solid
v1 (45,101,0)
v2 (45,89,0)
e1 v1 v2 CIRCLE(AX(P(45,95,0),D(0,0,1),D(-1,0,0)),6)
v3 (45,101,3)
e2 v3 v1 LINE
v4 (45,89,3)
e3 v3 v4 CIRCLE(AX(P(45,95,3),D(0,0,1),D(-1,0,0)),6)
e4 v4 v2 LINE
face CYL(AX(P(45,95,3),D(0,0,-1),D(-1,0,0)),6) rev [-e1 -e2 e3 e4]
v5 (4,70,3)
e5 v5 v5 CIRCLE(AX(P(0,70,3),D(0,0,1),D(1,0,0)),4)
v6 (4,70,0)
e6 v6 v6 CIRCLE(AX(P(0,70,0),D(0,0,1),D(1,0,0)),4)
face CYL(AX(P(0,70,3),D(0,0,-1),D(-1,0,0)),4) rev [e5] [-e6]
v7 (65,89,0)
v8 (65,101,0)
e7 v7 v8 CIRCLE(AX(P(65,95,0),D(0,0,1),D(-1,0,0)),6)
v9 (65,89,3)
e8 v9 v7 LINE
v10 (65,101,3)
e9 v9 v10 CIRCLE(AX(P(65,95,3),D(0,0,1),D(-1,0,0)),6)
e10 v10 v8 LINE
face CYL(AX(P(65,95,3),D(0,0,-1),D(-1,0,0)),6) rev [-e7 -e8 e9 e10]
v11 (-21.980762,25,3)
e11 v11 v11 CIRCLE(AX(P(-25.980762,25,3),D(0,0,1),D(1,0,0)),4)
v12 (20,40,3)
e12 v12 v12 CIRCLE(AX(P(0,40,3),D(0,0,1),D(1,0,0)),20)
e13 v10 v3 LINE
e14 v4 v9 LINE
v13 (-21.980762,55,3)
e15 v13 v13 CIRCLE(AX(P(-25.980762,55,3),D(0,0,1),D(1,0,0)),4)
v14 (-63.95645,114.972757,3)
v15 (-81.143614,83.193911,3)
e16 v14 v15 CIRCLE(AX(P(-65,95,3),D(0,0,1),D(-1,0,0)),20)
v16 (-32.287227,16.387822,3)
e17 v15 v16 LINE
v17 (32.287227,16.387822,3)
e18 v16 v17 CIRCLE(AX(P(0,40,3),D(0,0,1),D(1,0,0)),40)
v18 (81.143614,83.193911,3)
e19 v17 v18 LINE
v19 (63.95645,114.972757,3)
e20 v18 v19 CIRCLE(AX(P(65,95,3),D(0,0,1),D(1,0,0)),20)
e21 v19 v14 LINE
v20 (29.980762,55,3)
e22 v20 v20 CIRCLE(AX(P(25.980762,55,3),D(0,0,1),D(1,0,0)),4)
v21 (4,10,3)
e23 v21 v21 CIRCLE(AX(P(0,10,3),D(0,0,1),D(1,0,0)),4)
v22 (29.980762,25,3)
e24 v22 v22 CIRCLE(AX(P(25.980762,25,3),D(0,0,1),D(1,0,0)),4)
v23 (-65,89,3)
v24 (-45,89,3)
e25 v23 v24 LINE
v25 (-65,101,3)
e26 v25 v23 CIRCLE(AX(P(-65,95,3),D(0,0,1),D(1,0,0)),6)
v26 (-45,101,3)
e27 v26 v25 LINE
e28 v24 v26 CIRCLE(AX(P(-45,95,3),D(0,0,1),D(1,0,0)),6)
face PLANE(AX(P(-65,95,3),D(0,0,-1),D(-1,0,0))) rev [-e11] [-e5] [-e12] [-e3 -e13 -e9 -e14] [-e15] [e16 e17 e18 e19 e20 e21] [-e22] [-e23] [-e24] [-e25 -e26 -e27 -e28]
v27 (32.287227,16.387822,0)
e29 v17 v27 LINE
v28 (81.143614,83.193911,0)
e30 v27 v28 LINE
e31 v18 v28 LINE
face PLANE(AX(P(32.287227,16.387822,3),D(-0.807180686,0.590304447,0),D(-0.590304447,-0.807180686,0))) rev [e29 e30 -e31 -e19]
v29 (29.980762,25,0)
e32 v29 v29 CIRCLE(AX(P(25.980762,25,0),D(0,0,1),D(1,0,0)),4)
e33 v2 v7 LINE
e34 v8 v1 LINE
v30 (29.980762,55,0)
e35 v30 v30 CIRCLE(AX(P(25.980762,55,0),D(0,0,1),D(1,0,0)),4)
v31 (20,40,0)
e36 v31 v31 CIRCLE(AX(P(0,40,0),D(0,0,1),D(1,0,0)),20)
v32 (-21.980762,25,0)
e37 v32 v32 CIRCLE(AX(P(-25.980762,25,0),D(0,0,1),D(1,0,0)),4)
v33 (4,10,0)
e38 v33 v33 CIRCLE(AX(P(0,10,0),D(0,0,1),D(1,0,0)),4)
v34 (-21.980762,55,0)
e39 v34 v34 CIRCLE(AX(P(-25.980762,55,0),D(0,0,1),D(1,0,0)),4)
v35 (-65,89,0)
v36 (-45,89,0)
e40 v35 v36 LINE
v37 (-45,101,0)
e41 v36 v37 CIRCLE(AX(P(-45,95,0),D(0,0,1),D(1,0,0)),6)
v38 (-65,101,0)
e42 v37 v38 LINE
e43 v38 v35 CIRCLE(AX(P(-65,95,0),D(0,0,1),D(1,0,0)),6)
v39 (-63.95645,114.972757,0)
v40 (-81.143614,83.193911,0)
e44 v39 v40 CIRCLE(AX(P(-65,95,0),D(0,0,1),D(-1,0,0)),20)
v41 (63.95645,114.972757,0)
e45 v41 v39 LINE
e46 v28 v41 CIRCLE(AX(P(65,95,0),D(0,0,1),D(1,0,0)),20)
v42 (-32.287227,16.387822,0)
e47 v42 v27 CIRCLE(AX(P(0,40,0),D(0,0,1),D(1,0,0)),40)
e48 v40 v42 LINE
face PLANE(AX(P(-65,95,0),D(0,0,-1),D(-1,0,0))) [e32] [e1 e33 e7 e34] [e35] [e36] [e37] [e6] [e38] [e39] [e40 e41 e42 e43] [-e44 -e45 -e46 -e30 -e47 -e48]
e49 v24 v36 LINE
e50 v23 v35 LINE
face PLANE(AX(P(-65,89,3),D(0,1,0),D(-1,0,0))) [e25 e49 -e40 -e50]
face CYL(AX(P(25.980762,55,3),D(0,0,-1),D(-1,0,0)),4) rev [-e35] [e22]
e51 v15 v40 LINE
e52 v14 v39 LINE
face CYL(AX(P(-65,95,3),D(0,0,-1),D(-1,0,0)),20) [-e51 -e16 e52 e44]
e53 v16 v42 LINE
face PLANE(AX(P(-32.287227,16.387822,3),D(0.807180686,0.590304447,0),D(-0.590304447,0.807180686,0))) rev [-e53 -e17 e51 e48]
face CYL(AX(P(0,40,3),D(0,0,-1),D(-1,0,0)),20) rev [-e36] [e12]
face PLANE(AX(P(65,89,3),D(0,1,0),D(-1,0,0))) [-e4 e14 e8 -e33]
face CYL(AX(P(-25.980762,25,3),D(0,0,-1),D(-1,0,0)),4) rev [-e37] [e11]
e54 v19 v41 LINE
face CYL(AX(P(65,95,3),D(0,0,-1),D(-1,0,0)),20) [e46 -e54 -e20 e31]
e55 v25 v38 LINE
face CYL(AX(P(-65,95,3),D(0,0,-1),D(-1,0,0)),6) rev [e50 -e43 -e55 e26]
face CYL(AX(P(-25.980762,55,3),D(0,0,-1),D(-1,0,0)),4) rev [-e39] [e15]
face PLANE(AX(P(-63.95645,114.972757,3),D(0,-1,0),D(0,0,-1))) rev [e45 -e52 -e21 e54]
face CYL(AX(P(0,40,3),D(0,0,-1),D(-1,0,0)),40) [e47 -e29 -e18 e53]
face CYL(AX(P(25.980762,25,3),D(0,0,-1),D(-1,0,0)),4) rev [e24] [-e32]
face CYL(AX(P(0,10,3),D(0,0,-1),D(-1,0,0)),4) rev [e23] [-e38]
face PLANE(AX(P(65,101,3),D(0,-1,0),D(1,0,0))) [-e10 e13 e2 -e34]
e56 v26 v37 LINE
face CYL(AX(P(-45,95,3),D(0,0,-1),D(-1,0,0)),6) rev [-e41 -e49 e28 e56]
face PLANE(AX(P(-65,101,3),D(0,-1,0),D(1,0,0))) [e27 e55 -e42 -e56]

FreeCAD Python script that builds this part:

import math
import FreeCAD as App
import Part
import Sketcher
from FreeCAD import Vector

doc = App.newDocument("Part")
body = doc.addObject("PartDesign::Body", "Body")

sketch1 = body.newObject("Sketcher::SketchObject", "Sketch")
sketch1.AttachmentSupport = (doc.getObject("XY_Plane"), [""])
sketch1.MapMode = "FlatFace"
sketch1.addGeometry([
    Part.LineSegment(Vector(-81.143614, 83.193911, 0), Vector(-32.287227, 16.387822, 0)),
    Part.ArcOfCircle(Part.Circle(Vector(0, 40, 0), Vector(0, 0, 1), 40), math.radians(-143.821384), math.radians(-36.178616)),
    Part.LineSegment(Vector(32.287227, 16.387822, 0), Vector(81.143614, 83.193911, 0)),
    Part.ArcOfCircle(Part.Circle(Vector(65, 95, 0), Vector(0, 0, 1), 20), math.radians(-36.178616), math.radians(92.990908)),
    Part.LineSegment(Vector(63.95645, 114.972757, 0), Vector(-63.95645, 114.972757, 0)),
    Part.ArcOfCircle(Part.Circle(Vector(-65, 95, 0), Vector(0, 0, 1), 20), math.radians(87.009092), math.radians(216.178616)),
    Part.Circle(Vector(25.980762, 25, 0), Vector(0, 0, 1), 4),
    Part.Circle(Vector(0, 10, 0), Vector(0, 0, 1), 4),
    Part.Circle(Vector(-25.980762, 25, 0), Vector(0, 0, 1), 4),
    Part.Circle(Vector(0, 40, 0), Vector(0, 0, 1), 20),
    Part.Circle(Vector(25.980762, 55, 0), Vector(0, 0, 1), 4),
    Part.ArcOfCircle(Part.Circle(Vector(65, 95, 0), Vector(0, 0, 1), 6), math.radians(-90), math.radians(90)),
    Part.LineSegment(Vector(65, 89, 0), Vector(45, 89, 0)),
    Part.ArcOfCircle(Part.Circle(Vector(45, 95, 0), Vector(0, 0, 1), 6), math.radians(90), math.radians(270)),
    Part.LineSegment(Vector(45, 101, 0), Vector(65, 101, 0)),
    Part.Circle(Vector(-25.980762, 55, 0), Vector(0, 0, 1), 4),
    Part.Circle(Vector(0, 70, 0), Vector(0, 0, 1), 4),
    Part.LineSegment(Vector(-65, 101, 0), Vector(-45, 101, 0)),
    Part.ArcOfCircle(Part.Circle(Vector(-45, 95, 0), Vector(0, 0, 1), 6), math.radians(-90), math.radians(90)),
    Part.LineSegment(Vector(-45, 89, 0), Vector(-65, 89, 0)),
    Part.ArcOfCircle(Part.Circle(Vector(-65, 95, 0), Vector(0, 0, 1), 6), math.radians(90), math.radians(270)),
], False)
sketch1.addConstraint([
    Sketcher.Constraint("Tangent", 0, 2, 1, 1),
    Sketcher.Constraint("Tangent", 1, 2, 2, 1),
    Sketcher.Constraint("Tangent", 2, 2, 3, 1),
    Sketcher.Constraint("Coincident", 3, 2, 4, 1),
    Sketcher.Constraint("Coincident", 4, 2, 5, 1),
    Sketcher.Constraint("Tangent", 5, 2, 0, 1),
    Sketcher.Constraint("Tangent", 11, 1, 12, 1),
    Sketcher.Constraint("Tangent", 12, 2, 13, 2),
    Sketcher.Constraint("Tangent", 13, 1, 14, 1),
    Sketcher.Constraint("Tangent", 14, 2, 11, 2),
    Sketcher.Constraint("Tangent", 17, 2, 18, 2),
    Sketcher.Constraint("Tangent", 18, 1, 19, 1),
    Sketcher.Constraint("Tangent", 19, 2, 20, 2),
    Sketcher.Constraint("Tangent", 20, 1, 17, 1),
    Sketcher.Constraint("Horizontal", 4),
    Sketcher.Constraint("Horizontal", 12),
    Sketcher.Constraint("Horizontal", 14),
    Sketcher.Constraint("Horizontal", 17),
    Sketcher.Constraint("Horizontal", 19),
    Sketcher.Constraint("Coincident", 9, 3, 1, 3),
    Sketcher.Constraint("Coincident", 11, 3, 3, 3),
    Sketcher.Constraint("Coincident", 20, 3, 5, 3),
    Sketcher.Constraint("Equal", 3, 5),
    Sketcher.Constraint("Equal", 6, 7),
    Sketcher.Constraint("Equal", 7, 8),
    Sketcher.Constraint("Equal", 5, 9),
    Sketcher.Constraint("Equal", 8, 10),
    Sketcher.Constraint("Equal", 10, 15),
    Sketcher.Constraint("Equal", 15, 16),
    Sketcher.Constraint("Equal", 13, 18),
    Sketcher.Constraint("Symmetric", 3, 3, 5, 3, -2),
    Sketcher.Constraint("Symmetric", 6, 3, 8, 3, -2),
    Sketcher.Constraint("Symmetric", 10, 3, 15, 3, -2),
    Sketcher.Constraint("PointOnObject", 1, 3, -2),
    Sketcher.Constraint("PointOnObject", 7, 3, -2),
    Sketcher.Constraint("PointOnObject", 16, 3, -2),
    Sketcher.Constraint("Vertical", 6, 3, 10, 3),
    Sketcher.Constraint("Equal", 14, 17),
    Sketcher.Constraint("Diameter", 6, 8.0),
    Sketcher.Constraint("Diameter", 9, 40.0),
    Sketcher.Constraint("Radius", 1, 40.0),
    Sketcher.Constraint("Radius", 11, 6.0),
    Sketcher.Constraint("DistanceX", 12, 2, 12, 1, 20.0),
    Sketcher.Constraint("DistanceY", -1, 1, 1, 3, 40.0),
    Sketcher.Constraint("DistanceX", -1, 1, 3, 3, 65.0),
    Sketcher.Constraint("DistanceY", -1, 1, 3, 3, 95.0),
    Sketcher.Constraint("DistanceY", -1, 1, 6, 3, 25.0),
    Sketcher.Constraint("DistanceY", -1, 1, 7, 3, 10.0),
    Sketcher.Constraint("DistanceY", -1, 1, 10, 3, 55.0),
    Sketcher.Constraint("DistanceY", -1, 1, 16, 3, 70.0),
    Sketcher.Constraint("DistanceX", 4, 2, 4, 1, 127.912901),
    Sketcher.Constraint("DistanceX", 10, 3, 2, 2, 55.162852),
])
pad1 = body.newObject("PartDesign::Pad", "Pad")
pad1.Profile = sketch1
pad1.Length = 3

doc.recompute()
